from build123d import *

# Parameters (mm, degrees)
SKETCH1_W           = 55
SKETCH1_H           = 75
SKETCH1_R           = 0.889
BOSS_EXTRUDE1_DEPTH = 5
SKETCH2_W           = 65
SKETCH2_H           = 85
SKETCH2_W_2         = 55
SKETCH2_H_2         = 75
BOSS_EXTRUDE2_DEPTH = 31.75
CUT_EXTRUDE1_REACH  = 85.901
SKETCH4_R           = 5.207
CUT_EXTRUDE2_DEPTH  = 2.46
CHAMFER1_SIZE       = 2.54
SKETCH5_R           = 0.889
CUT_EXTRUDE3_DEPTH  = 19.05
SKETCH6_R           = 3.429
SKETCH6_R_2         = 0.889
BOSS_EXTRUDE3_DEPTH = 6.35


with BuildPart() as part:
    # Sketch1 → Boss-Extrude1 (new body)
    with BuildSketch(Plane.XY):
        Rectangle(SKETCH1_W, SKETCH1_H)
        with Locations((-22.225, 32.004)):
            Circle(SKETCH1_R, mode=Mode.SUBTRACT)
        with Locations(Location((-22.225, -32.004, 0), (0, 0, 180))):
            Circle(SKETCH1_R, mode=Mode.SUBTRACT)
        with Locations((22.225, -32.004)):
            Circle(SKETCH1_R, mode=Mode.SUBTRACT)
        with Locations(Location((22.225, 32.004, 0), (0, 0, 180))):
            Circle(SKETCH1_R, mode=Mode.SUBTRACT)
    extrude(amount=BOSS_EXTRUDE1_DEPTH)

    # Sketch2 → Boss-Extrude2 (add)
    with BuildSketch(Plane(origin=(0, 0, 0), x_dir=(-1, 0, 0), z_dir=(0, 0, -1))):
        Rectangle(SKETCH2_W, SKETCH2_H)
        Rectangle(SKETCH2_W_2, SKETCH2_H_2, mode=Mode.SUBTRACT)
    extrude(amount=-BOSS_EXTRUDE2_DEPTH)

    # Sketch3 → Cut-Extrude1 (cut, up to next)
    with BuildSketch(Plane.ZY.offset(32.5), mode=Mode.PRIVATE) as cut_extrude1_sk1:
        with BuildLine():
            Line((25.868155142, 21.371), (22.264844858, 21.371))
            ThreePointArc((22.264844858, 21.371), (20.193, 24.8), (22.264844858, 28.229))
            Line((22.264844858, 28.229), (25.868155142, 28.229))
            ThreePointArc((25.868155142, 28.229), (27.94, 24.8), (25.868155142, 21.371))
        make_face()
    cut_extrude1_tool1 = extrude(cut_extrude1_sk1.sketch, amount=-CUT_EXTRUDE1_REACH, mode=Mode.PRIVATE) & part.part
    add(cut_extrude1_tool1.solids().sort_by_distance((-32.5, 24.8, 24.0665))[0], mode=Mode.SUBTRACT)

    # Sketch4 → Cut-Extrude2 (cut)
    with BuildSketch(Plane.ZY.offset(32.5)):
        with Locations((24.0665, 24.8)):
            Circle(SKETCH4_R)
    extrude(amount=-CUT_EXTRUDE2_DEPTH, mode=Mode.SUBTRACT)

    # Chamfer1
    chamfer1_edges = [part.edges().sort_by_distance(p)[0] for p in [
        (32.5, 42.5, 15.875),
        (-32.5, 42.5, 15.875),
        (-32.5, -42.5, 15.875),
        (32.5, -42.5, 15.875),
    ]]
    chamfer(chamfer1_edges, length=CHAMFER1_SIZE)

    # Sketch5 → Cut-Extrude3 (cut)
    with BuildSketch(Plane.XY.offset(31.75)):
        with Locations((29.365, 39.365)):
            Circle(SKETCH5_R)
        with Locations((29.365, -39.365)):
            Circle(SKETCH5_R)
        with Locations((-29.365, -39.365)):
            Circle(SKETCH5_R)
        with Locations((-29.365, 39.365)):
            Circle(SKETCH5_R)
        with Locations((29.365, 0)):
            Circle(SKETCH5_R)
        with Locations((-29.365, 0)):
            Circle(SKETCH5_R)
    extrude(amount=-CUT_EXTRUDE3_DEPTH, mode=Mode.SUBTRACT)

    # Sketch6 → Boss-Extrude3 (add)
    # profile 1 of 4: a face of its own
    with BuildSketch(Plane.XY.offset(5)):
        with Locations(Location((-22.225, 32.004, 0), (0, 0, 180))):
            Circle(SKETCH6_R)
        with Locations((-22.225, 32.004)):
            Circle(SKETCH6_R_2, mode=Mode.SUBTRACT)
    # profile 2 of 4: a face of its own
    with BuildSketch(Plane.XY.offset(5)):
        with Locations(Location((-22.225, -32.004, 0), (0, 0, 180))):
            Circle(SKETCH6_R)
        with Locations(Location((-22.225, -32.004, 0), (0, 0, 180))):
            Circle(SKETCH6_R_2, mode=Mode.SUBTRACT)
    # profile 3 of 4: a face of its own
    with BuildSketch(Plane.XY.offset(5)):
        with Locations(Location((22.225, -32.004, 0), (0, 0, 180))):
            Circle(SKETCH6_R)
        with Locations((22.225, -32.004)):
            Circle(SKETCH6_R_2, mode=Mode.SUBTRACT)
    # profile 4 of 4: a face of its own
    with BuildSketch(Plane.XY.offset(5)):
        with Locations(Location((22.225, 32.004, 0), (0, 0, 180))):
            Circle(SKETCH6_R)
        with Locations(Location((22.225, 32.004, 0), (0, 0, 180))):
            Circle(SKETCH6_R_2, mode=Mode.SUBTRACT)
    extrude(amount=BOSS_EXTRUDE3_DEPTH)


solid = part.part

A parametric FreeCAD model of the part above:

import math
import FreeCAD as App
import Part
import Sketcher
Q = App.Units.Quantity


def edges_at(feature, points):
    """Names of the edges that pass closest to the given points."""
    edges = feature.Shape.Edges
    near = lambda p: min(range(len(edges)), key=lambda i: edges[i].distToShape(Part.Vertex(*p))[0])
    return sorted({f"Edge{near(p) + 1}" for p in points})

doc = App.newDocument("Part")
params = doc.addObject("Spreadsheet::Sheet", "Params")
for row, (alias, value) in enumerate([
    ("sketch1_diameter", "0.07 in"),
    ("pad1_length", "5 mm"),
    ("pad2_length", "1.25 in"),
    ("sketch4_diameter", "0.41 in"),
    ("pocket2_length", "2.46 mm"),
    ("chamfer_size", "0.1 in"),
    ("sketch5_diameter", "0.07 in"),
    ("pocket3_length", "0.75 in"),
    ("sketch6_diameter", "0.27 in"),
    ("sketch6_diameter2", "0.07 in"),
    ("pad3_length", "0.25 in"),
], start=1):
    params.set(f"A{row}", alias)
    params.set(f"B{row}", "=" + value)
    params.setAlias(f"B{row}", alias)

body = doc.addObject("PartDesign::Body", "Body")

# Sketch on XY plane
sketch1 = body.newObject("Sketcher::SketchObject", "Sketch")
sketch1.AttachmentSupport = (doc.getObject("XY_Plane"), [""])
sketch1.MapMode = "FlatFace"
sketch1.addGeometry(Part.LineSegment(App.Vector(-27.5, 37.5, 0), App.Vector(-27.5, -37.5, 0)), False)
sketch1.addGeometry(Part.LineSegment(App.Vector(-27.5, -37.5, 0), App.Vector(27.5, -37.5, 0)), False)
sketch1.addGeometry(Part.LineSegment(App.Vector(27.5, -37.5, 0), App.Vector(27.5, 37.5, 0)), False)
sketch1.addGeometry(Part.LineSegment(App.Vector(27.5, 37.5, 0), App.Vector(-27.5, 37.5, 0)), False)
sketch1.addGeometry(Part.Circle(App.Vector(-22.2, -32, 0), App.Vector(0, 0, 1), 0.9), False)
sketch1.addGeometry(Part.Circle(App.Vector(22.2, -32, 0), App.Vector(0, 0, 1), 0.9), False)
sketch1.addGeometry(Part.Circle(App.Vector(-22.2, 32, 0), App.Vector(0, 0, 1), 0.9), False)
sketch1.addGeometry(Part.Circle(App.Vector(22.2, 32, 0), App.Vector(0, 0, 1), 0.9), False)
sketch1.addConstraint(Sketcher.Constraint("Coincident", 0, 2, 1, 1))
sketch1.addConstraint(Sketcher.Constraint("Coincident", 1, 2, 2, 1))
sketch1.addConstraint(Sketcher.Constraint("Coincident", 2, 2, 3, 1))
sketch1.addConstraint(Sketcher.Constraint("Coincident", 3, 2, 0, 1))
sketch1.addConstraint(Sketcher.Constraint("Vertical", 0))
sketch1.addConstraint(Sketcher.Constraint("Horizontal", 1))
sketch1.addConstraint(Sketcher.Constraint("Vertical", 2))
sketch1.addConstraint(Sketcher.Constraint("Horizontal", 3))
sketch1.addConstraint(Sketcher.Constraint("Equal", 4, 5))
sketch1.addConstraint(Sketcher.Constraint("Equal", 5, 6))
sketch1.addConstraint(Sketcher.Constraint("Equal", 6, 7))
sketch1.addConstraint(Sketcher.Constraint("Symmetric", 5, 3, 6, 3, -1, 1))
sketch1.addConstraint(Sketcher.Constraint("Symmetric", 4, 3, 7, 3, -1, 1))
sketch1.addConstraint(Sketcher.Constraint("Symmetric", 0, 2, 2, 2, -1, 1))
sketch1.addConstraint(Sketcher.Constraint("Symmetric", 4, 3, 5, 3, -2))
sketch1.addConstraint(Sketcher.Constraint("Diameter", 4, Q("0.07 in")))
sketch1.addConstraint(Sketcher.Constraint("DistanceY", 4, 3, -1, 1, Q("1.26 in")))
sketch1.addConstraint(Sketcher.Constraint("DistanceX", 4, 3, 5, 3, Q("1.75 in")))
sketch1.addConstraint(Sketcher.Constraint("DistanceX", 1, 1, 1, 2, 55.0))
sketch1.addConstraint(Sketcher.Constraint("DistanceY", 0, 2, 0, 1, 75.0))
sketch1.setExpression("Constraints[15]", "Params.sketch1_diameter")
pad1 = body.newObject("PartDesign::Pad", "Pad")
pad1.Profile = sketch1
pad1.setExpression("Length", "Params.pad1_length")

# Sketch on XY plane
sketch2 = body.newObject("Sketcher::SketchObject", "Sketch001")
sketch2.AttachmentSupport = (doc.getObject("XY_Plane"), [""])
sketch2.MapMode = "FlatFace"
sketch2.addGeometry(Part.LineSegment(App.Vector(32, 42, 0), App.Vector(32, -42, 0)), False)
sketch2.addGeometry(Part.LineSegment(App.Vector(32, -42, 0), App.Vector(-32, -42, 0)), False)
sketch2.addGeometry(Part.LineSegment(App.Vector(-32, -42, 0), App.Vector(-32, 42, 0)), False)
sketch2.addGeometry(Part.LineSegment(App.Vector(-32, 42, 0), App.Vector(32, 42, 0)), False)
sketch2.addGeometry(Part.LineSegment(App.Vector(-28, -38, 0), App.Vector(28, -38, 0)), False)
sketch2.addGeometry(Part.LineSegment(App.Vector(28, -38, 0), App.Vector(28, 38, 0)), False)
sketch2.addGeometry(Part.LineSegment(App.Vector(28, 38, 0), App.Vector(-28, 38, 0)), False)
sketch2.addGeometry(Part.LineSegment(App.Vector(-28, 38, 0), App.Vector(-28, -38, 0)), False)
sketch2.addConstraint(Sketcher.Constraint("Coincident", 0, 2, 1, 1))
sketch2.addConstraint(Sketcher.Constraint("Coincident", 1, 2, 2, 1))
sketch2.addConstraint(Sketcher.Constraint("Coincident", 2, 2, 3, 1))
sketch2.addConstraint(Sketcher.Constraint("Coincident", 3, 2, 0, 1))
sketch2.addConstraint(Sketcher.Constraint("Coincident", 4, 2, 5, 1))
sketch2.addConstraint(Sketcher.Constraint("Coincident", 5, 2, 6, 1))
sketch2.addConstraint(Sketcher.Constraint("Coincident", 6, 2, 7, 1))
sketch2.addConstraint(Sketcher.Constraint("Coincident", 7, 2, 4, 1))
sketch2.addConstraint(Sketcher.Constraint("Vertical", 0))
sketch2.addConstraint(Sketcher.Constraint("Horizontal", 1))
sketch2.addConstraint(Sketcher.Constraint("Vertical", 2))
sketch2.addConstraint(Sketcher.Constraint("Horizontal", 3))
sketch2.addConstraint(Sketcher.Constraint("Horizontal", 4))
sketch2.addConstraint(Sketcher.Constraint("Vertical", 5))
sketch2.addConstraint(Sketcher.Constraint("Horizontal", 6))
sketch2.addConstraint(Sketcher.Constraint("Vertical", 7))
sketch2.addConstraint(Sketcher.Constraint("Symmetric", 0, 2, 2, 2, -1, 1))
sketch2.addConstraint(Sketcher.Constraint("Symmetric", 4, 2, 6, 2, -1, 1))
sketch2.addConstraint(Sketcher.Constraint("DistanceX", 1, 2, 1, 1, 65.0))
sketch2.addConstraint(Sketcher.Constraint("DistanceX", 4, 1, 4, 2, 55.0))
sketch2.addConstraint(Sketcher.Constraint("DistanceY", 0, 2, 0, 1, 85.0))
sketch2.addConstraint(Sketcher.Constraint("DistanceY", 5, 1, 5, 2, 75.0))
pad2 = body.newObject("PartDesign::Pad", "Pad001")
pad2.Profile = sketch2
pad2.setExpression("Length", "Params.pad2_length")

# Sketch on YZ plane
sketch3 = body.newObject("Sketcher::SketchObject", "Sketch002")
sketch3.AttachmentSupport = (doc.getObject("YZ_Plane"), [""])
sketch3.MapMode = "FlatFace"
sketch3.AttachmentOffset = App.Placement(App.Vector(0, 0, -32.5), App.Rotation())
sketch3.addGeometry(Part.LineSegment(App.Vector(21.4, 22.3, 0), App.Vector(21.4, 25.9, 0)), False)
sketch3.addGeometry(Part.ArcOfCircle(Part.Circle(App.Vector(24.8, 24.1, 0), App.Vector(0, 0, 1), 3.9), math.radians(28), math.radians(152)), False)
sketch3.addGeometry(Part.LineSegment(App.Vector(28.2, 25.9, 0), App.Vector(28.2, 22.3, 0)), False)
sketch3.addGeometry(Part.ArcOfCircle(Part.Circle(App.Vector(24.8, 24.1, 0), App.Vector(0, 0, 1), 3.9), math.radians(-152), math.radians(-28)), False)
sketch3.addConstraint(Sketcher.Constraint("Coincident", 0, 2, 1, 2))
sketch3.addConstraint(Sketcher.Constraint("Coincident", 1, 1, 2, 1))
sketch3.addConstraint(Sketcher.Constraint("Coincident", 2, 2, 3, 2))
sketch3.addConstraint(Sketcher.Constraint("Coincident", 3, 1, 0, 1))
sketch3.addConstraint(Sketcher.Constraint("Vertical", 0))
sketch3.addConstraint(Sketcher.Constraint("Vertical", 2))
sketch3.addConstraint(Sketcher.Constraint("Coincident", 3, 3, 1, 3))
sketch3.addConstraint(Sketcher.Constraint("Equal", 1, 3))
sketch3.addConstraint(Sketcher.Constraint("Horizontal", 0, 2, 1, 1))
sketch3.addConstraint(Sketcher.Constraint("Radius", 1, Q("0.1525 in")))
sketch3.addConstraint(Sketcher.Constraint("DistanceX", 0, 2, 1, 1, Q("0.27 in")))
sketch3.addConstraint(Sketcher.Constraint("DistanceY", -1, 1, 1, 3, Q("0.9475 in")))
sketch3.addConstraint(Sketcher.Constraint("DistanceX", -1, 1, 1, 3, 24.8))
pocket1 = body.newObject("PartDesign::Pocket", "Pocket")
pocket1.Profile = sketch3
pocket1.Type = "UpToFirst"
pocket1.Reversed = True

# Sketch on YZ plane
sketch4 = body.newObject("Sketcher::SketchObject", "Sketch003")
sketch4.AttachmentSupport = (doc.getObject("YZ_Plane"), [""])
sketch4.MapMode = "FlatFace"
sketch4.AttachmentOffset = App.Placement(App.Vector(0, 0, -32.5), App.Rotation())
sketch4.addGeometry(Part.Circle(App.Vector(25, 24, 0), App.Vector(0, 0, 1), 5), False)
sketch4.addConstraint(Sketcher.Constraint("Diameter", 0, Q("0.41 in")))
sketch4.addConstraint(Sketcher.Constraint("DistanceY", -1, 1, 0, 3, Q("0.9475 in")))
sketch4.addConstraint(Sketcher.Constraint("DistanceX", -1, 1, 0, 3, 24.8))
sketch4.setExpression("Constraints[0]", "Params.sketch4_diameter")
pocket2 = body.newObject("PartDesign::Pocket", "Pocket001")
pocket2.Profile = sketch4
pocket2.setExpression("Length", "Params.pocket2_length")
pocket2.Reversed = True
doc.recompute()

chamfer = body.newObject("PartDesign::Chamfer", "Chamfer")
chamfer.Base = (pocket2, edges_at(pocket2, [
    (32.5, 42.5, 15.875),
    (-32.5, 42.5, 15.875),
    (-32.5, -42.5, 15.875),
    (32.5, -42.5, 15.875),
]))
chamfer.setExpression("Size", "Params.chamfer_size")

# Sketch on XY plane
sketch5 = body.newObject("Sketcher::SketchObject", "Sketch004")
sketch5.AttachmentSupport = (doc.getObject("XY_Plane"), [""])
sketch5.MapMode = "FlatFace"
sketch5.AttachmentOffset = App.Placement(App.Vector(0, 0, 1.25 * 25.4), App.Rotation())
sketch5.addGeometry(Part.Circle(App.Vector(29.4, 39.4, 0), App.Vector(0, 0, 1), 0.9), False)
sketch5.addGeometry(Part.Circle(App.Vector(29.4, -39.4, 0), App.Vector(0, 0, 1), 0.9), False)
sketch5.addGeometry(Part.Circle(App.Vector(-29.4, -39.4, 0), App.Vector(0, 0, 1), 0.9), False)
sketch5.addGeometry(Part.Circle(App.Vector(-29.4, 39.4, 0), App.Vector(0, 0, 1), 0.9), False)
sketch5.addGeometry(Part.Circle(App.Vector(29.4, 0, 0), App.Vector(0, 0, 1), 0.9), False)
sketch5.addGeometry(Part.Circle(App.Vector(-29.4, 0, 0), App.Vector(0, 0, 1), 0.9), False)
sketch5.addConstraint(Sketcher.Constraint("Equal", 0, 1))
sketch5.addConstraint(Sketcher.Constraint("Equal", 1, 2))
sketch5.addConstraint(Sketcher.Constraint("Equal", 2, 3))
sketch5.addConstraint(Sketcher.Constraint("Equal", 3, 4))
sketch5.addConstraint(Sketcher.Constraint("Equal", 4, 5))
sketch5.addConstraint(Sketcher.Constraint("Symmetric", 0, 3, 2, 3, -1, 1))
sketch5.addConstraint(Sketcher.Constraint("Symmetric", 1, 3, 3, 3, -1, 1))
sketch5.addConstraint(Sketcher.Constraint("Symmetric", 4, 3, 5, 3, -1, 1))
sketch5.addConstraint(Sketcher.Constraint("Symmetric", 1, 3, 2, 3, -2))
sketch5.addConstraint(Sketcher.Constraint("PointOnObject", 4, 3, -1))
sketch5.addConstraint(Sketcher.Constraint("Vertical", 1, 3, 4, 3))
sketch5.addConstraint(Sketcher.Constraint("Diameter", 0, Q("0.07 in")))
sketch5.addConstraint(Sketcher.Constraint("DistanceX", -1, 1, 0, 3, 29.365))
sketch5.addConstraint(Sketcher.Constraint("DistanceY", -1, 1, 0, 3, 39.365))
sketch5.setExpression("Constraints[11]", "Params.sketch5_diameter")
pocket3 = body.newObject("PartDesign::Pocket", "Pocket002")
pocket3.Profile = sketch5
pocket3.setExpression("Length", "Params.pocket3_length")

# Sketch on XY plane
sketch6 = body.newObject("Sketcher::SketchObject", "Sketch005")
sketch6.AttachmentSupport = (doc.getObject("XY_Plane"), [""])
sketch6.MapMode = "FlatFace"
sketch6.AttachmentOffset = App.Placement(App.Vector(0, 0, 5), App.Rotation())
sketch6.addGeometry(Part.Circle(App.Vector(-22.2, 32, 0), App.Vector(0, 0, 1), 3.4), False)
sketch6.addGeometry(Part.Circle(App.Vector(-22.2, 32, 0), App.Vector(0, 0, 1), 0.9), False)
sketch6.addGeometry(Part.Circle(App.Vector(-22.2, -32, 0), App.Vector(0, 0, 1), 3.4), False)
sketch6.addGeometry(Part.Circle(App.Vector(-22.2, -32, 0), App.Vector(0, 0, 1), 0.9), False)
sketch6.addGeometry(Part.Circle(App.Vector(22.2, -32, 0), App.Vector(0, 0, 1), 3.4), False)
sketch6.addGeometry(Part.Circle(App.Vector(22.2, -32, 0), App.Vector(0, 0, 1), 0.9), False)
sketch6.addGeometry(Part.Circle(App.Vector(22.2, 32, 0), App.Vector(0, 0, 1), 3.4), False)
sketch6.addGeometry(Part.Circle(App.Vector(22.2, 32, 0), App.Vector(0, 0, 1), 0.9), False)
sketch6.addConstraint(Sketcher.Constraint("Coincident", 1, 3, 0, 3))
sketch6.addConstraint(Sketcher.Constraint("Coincident", 3, 3, 2, 3))
sketch6.addConstraint(Sketcher.Constraint("Coincident", 5, 3, 4, 3))
sketch6.addConstraint(Sketcher.Constraint("Coincident", 7, 3, 6, 3))
sketch6.addConstraint(Sketcher.Constraint("Equal", 0, 2))
sketch6.addConstraint(Sketcher.Constraint("Equal", 1, 3))
sketch6.addConstraint(Sketcher.Constraint("Equal", 2, 4))
sketch6.addConstraint(Sketcher.Constraint("Equal", 3, 5))
sketch6.addConstraint(Sketcher.Constraint("Equal", 4, 6))
sketch6.addConstraint(Sketcher.Constraint("Equal", 5, 7))
sketch6.addConstraint(Sketcher.Constraint("Symmetric", 0, 3, 4, 3, -1, 1))
sketch6.addConstraint(Sketcher.Constraint("Symmetric", 2, 3, 6, 3, -1, 1))
sketch6.addConstraint(Sketcher.Constraint("Symmetric", 2, 3, 4, 3, -2))
sketch6.addConstraint(Sketcher.Constraint("Diameter", 0, Q("0.27 in")))
sketch6.addConstraint(Sketcher.Constraint("Diameter", 1, Q("0.07 in")))
sketch6.addConstraint(Sketcher.Constraint("DistanceY", -1, 1, 0, 3, Q("1.26 in")))
sketch6.addConstraint(Sketcher.Constraint("DistanceX", 2, 3, 4, 3, Q("1.75 in")))
sketch6.setExpression("Constraints[13]", "Params.sketch6_diameter")
sketch6.setExpression("Constraints[14]", "Params.sketch6_diameter2")
pad3 = body.newObject("PartDesign::Pad", "Pad002")
pad3.Profile = sketch6
pad3.setExpression("Length", "Params.pad3_length")

doc.recompute()
